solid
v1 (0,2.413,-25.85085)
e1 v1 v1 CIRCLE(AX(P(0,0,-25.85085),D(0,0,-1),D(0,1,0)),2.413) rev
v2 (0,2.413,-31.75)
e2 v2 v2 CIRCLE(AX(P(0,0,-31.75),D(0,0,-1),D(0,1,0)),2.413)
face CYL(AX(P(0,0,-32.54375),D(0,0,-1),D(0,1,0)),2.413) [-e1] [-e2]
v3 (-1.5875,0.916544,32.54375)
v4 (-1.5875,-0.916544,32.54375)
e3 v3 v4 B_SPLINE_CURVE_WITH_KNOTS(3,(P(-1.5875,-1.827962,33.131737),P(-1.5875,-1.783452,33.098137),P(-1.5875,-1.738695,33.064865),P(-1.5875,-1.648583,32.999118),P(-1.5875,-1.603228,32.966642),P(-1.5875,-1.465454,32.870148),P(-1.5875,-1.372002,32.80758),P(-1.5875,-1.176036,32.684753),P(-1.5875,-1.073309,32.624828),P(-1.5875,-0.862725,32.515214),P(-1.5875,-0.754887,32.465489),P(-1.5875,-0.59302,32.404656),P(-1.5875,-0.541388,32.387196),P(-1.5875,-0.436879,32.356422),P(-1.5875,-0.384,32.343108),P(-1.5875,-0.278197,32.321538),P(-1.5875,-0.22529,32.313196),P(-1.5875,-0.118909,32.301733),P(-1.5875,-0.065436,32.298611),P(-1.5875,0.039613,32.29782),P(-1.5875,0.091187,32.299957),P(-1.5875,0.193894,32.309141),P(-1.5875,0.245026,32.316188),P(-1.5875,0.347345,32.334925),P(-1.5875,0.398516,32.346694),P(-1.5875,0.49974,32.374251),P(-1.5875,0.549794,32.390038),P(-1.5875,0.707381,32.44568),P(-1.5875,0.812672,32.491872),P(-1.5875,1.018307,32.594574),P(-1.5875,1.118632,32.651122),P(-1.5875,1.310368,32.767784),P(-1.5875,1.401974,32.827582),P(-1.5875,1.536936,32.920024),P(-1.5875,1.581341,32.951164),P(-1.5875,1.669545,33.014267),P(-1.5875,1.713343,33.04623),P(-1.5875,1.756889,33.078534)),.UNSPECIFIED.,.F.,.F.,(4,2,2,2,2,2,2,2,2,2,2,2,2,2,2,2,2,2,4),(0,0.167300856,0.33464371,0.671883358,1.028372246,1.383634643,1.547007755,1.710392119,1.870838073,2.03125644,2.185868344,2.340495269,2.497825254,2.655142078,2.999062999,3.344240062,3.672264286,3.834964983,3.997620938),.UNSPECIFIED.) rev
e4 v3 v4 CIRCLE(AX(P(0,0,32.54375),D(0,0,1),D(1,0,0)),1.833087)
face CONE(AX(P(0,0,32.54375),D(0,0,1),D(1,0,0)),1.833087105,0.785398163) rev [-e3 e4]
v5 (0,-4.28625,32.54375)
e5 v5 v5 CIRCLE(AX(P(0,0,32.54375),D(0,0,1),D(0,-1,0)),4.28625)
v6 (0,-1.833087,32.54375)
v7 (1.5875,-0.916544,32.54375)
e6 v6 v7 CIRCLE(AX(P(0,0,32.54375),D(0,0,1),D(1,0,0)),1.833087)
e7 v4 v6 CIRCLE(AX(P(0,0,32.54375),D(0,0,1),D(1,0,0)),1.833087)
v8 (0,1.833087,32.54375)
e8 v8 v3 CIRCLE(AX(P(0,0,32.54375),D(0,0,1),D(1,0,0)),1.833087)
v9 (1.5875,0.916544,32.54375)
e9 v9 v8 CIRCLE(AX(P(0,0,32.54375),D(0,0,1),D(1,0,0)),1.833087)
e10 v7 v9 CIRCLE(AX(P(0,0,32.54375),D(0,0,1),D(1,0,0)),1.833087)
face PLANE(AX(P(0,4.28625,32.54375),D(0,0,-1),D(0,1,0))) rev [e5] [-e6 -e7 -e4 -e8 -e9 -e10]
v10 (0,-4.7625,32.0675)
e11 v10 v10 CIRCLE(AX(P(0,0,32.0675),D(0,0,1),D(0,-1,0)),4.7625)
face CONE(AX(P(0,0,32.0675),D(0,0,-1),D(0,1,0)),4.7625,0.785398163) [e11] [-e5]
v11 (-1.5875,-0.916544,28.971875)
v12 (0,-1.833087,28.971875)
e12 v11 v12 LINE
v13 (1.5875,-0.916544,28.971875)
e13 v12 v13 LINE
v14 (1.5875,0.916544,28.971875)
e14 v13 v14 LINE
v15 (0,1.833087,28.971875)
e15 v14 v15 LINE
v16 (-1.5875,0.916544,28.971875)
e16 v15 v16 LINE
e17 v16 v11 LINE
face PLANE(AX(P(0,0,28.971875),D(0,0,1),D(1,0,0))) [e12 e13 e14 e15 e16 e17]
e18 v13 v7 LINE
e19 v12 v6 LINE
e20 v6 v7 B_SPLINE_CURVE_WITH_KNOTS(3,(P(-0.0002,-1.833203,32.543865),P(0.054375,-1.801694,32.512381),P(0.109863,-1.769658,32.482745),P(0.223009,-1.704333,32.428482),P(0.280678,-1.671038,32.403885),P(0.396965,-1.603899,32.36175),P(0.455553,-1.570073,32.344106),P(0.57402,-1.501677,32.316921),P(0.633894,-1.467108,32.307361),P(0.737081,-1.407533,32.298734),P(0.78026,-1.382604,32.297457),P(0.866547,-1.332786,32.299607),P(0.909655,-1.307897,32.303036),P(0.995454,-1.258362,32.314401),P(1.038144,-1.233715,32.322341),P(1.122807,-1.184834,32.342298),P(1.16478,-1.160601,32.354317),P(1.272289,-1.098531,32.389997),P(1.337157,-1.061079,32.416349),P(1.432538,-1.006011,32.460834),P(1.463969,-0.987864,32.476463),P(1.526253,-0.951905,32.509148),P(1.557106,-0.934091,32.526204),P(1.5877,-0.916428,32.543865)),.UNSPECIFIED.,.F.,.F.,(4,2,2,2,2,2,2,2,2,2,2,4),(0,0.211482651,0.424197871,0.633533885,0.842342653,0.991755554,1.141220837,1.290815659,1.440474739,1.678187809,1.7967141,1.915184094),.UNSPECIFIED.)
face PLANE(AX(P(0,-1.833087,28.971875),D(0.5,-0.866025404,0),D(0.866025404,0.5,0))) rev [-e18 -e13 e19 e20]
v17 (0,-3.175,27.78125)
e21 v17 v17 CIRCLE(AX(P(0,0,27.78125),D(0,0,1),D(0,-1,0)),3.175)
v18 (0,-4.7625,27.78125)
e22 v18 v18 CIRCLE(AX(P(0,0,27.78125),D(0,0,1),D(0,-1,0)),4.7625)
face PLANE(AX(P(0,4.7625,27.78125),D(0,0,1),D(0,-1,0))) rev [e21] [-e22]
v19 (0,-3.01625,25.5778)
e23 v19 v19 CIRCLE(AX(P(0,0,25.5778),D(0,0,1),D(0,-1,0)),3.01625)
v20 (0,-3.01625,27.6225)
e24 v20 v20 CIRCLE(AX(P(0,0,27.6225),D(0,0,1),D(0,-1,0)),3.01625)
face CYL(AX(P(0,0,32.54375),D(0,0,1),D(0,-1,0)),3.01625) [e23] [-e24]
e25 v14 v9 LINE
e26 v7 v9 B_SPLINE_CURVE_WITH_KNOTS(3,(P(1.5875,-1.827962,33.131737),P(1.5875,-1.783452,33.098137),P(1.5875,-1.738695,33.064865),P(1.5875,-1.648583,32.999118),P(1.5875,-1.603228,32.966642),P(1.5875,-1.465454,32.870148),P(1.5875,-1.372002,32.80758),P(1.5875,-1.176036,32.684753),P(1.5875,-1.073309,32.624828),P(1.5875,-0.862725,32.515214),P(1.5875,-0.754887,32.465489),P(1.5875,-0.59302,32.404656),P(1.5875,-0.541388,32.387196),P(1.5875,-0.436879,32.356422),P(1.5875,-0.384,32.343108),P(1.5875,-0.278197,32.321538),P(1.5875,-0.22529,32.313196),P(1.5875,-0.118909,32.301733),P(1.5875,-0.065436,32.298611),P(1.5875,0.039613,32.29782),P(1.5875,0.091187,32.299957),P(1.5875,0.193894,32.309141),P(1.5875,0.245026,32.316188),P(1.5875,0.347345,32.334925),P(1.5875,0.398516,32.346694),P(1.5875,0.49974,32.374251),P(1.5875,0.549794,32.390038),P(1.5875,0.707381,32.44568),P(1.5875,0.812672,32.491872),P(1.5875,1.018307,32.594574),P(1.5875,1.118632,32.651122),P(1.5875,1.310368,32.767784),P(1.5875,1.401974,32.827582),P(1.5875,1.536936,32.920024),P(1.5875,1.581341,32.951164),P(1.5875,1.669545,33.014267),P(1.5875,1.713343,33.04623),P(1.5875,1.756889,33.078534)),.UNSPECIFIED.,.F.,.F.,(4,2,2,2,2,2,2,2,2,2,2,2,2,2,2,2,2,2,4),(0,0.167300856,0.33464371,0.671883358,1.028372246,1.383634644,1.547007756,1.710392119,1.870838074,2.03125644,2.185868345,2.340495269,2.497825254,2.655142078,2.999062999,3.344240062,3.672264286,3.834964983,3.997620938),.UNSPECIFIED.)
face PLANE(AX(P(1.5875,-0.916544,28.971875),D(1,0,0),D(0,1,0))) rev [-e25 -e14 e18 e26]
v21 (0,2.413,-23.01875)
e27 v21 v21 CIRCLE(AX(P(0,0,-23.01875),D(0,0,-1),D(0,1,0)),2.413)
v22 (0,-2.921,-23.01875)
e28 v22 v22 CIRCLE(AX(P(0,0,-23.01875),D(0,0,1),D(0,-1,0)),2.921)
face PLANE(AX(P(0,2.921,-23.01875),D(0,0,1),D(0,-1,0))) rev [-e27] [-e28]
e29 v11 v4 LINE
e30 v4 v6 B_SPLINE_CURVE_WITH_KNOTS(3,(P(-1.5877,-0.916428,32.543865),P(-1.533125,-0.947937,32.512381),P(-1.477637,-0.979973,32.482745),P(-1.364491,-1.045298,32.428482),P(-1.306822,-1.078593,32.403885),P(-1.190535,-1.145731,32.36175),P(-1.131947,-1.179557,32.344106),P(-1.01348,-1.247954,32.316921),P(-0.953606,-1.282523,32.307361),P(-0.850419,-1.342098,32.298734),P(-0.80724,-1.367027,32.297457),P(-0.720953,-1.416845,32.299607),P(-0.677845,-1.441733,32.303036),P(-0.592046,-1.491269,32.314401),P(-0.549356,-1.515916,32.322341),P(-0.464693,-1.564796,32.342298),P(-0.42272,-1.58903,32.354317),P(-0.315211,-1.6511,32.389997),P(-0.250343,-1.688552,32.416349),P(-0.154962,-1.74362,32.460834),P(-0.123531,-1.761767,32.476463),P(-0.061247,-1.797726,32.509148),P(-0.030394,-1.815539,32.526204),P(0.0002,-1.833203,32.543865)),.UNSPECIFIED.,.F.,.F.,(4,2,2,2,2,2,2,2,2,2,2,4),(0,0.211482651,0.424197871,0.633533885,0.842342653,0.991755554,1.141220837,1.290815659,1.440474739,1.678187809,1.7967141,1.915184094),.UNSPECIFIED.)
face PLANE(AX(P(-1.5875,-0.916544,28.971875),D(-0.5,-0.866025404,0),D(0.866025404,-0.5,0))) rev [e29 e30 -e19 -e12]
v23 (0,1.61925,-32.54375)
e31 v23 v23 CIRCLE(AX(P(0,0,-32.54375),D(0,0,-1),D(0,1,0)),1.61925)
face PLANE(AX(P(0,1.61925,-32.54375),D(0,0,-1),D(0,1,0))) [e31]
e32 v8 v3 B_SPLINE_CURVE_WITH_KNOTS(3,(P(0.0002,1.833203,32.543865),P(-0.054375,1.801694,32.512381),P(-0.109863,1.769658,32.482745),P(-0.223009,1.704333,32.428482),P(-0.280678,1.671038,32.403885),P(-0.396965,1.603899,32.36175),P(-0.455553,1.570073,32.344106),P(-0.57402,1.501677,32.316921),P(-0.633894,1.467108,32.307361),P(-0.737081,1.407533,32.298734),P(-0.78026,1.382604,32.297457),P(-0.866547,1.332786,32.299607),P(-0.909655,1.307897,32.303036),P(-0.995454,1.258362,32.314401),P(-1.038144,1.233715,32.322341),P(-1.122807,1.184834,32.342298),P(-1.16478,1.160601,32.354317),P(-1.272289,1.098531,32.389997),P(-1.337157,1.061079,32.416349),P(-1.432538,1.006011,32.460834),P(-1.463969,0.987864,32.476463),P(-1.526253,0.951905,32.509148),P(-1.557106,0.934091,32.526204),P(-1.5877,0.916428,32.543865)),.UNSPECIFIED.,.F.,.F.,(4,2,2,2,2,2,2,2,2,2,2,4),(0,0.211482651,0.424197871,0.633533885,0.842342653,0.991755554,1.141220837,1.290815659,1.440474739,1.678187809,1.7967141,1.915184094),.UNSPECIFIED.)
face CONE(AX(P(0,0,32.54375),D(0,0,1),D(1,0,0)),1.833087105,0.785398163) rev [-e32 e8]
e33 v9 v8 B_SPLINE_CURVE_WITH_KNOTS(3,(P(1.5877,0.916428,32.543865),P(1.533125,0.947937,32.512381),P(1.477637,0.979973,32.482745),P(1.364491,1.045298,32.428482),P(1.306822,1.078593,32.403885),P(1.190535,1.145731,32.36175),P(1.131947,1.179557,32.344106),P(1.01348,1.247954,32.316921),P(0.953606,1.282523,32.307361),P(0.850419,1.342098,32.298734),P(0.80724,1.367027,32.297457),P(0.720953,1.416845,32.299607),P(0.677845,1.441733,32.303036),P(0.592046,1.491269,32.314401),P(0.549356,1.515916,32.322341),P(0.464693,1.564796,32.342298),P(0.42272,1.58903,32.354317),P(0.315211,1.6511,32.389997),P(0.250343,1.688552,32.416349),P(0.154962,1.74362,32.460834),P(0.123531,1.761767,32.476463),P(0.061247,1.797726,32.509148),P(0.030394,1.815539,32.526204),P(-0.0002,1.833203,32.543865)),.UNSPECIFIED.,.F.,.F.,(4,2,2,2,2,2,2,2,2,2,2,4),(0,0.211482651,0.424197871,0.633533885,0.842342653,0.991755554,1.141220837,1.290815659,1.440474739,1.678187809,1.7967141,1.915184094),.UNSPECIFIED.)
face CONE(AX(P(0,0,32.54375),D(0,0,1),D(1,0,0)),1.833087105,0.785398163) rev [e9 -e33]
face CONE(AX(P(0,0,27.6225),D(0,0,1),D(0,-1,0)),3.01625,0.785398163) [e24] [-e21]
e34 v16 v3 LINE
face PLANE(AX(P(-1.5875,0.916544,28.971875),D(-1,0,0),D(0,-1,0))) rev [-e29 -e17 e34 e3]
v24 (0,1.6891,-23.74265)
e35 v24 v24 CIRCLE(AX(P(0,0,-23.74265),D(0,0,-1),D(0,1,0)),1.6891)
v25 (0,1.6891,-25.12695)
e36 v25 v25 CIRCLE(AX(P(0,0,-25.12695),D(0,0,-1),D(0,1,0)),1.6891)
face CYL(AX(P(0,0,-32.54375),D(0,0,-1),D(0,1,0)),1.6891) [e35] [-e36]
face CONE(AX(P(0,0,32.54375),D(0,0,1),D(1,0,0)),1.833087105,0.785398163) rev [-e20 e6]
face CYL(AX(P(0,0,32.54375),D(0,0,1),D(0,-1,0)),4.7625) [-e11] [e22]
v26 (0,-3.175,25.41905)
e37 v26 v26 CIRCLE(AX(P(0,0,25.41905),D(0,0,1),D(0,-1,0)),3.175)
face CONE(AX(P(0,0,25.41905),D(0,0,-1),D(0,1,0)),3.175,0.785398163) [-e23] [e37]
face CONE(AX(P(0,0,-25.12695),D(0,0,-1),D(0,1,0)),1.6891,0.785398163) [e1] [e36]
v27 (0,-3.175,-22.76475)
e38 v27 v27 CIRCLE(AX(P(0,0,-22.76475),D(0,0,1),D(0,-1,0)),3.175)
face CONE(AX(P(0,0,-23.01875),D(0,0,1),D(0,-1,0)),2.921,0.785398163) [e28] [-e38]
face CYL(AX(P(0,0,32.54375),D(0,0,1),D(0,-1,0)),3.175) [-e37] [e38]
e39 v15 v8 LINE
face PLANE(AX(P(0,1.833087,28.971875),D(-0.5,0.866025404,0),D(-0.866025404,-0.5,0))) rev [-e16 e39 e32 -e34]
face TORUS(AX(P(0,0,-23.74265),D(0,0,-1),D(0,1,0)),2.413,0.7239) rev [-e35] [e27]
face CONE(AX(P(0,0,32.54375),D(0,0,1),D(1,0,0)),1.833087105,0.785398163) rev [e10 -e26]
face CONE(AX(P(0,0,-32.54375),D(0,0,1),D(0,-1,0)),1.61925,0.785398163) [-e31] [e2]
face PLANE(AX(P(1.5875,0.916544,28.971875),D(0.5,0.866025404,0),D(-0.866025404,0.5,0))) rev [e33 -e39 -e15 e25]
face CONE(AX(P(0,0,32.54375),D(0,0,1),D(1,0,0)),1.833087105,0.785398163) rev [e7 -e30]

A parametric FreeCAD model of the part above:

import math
import FreeCAD as App
import Part
import Sketcher

V = App.Vector
Q = App.Units.Quantity

doc = App.newDocument("Part")
body = doc.addObject("PartDesign::Body", "Body")

# Sketch on YZ plane
sketch1 = body.newObject("Sketcher::SketchObject", "Sketch")
sketch1.AttachmentSupport = (doc.getObject("YZ_Plane"), [""])
sketch1.MapMode = "FlatFace"
sketch1.addGeometry([
    Part.LineSegment(V(4.76, 27.78, 0), V(4.76, 32.07, 0)),  # 0
    Part.LineSegment(V(4.76, 32.07, 0), V(4.29, 32.54, 0)),  # 1
    Part.LineSegment(V(4.29, 32.54, 0), V(0, 32.54, 0)),  # 2
    Part.LineSegment(V(0, 32.54, 0), V(0, -23.02, 0)),  # 3
    Part.LineSegment(V(0, -23.02, 0), V(2.92, -23.02, 0)),  # 4
    Part.LineSegment(V(2.92, -23.02, 0), V(3.17, -22.76, 0)),  # 5
    Part.LineSegment(V(3.17, -22.76, 0), V(3.17, 25.42, 0)),  # 6
    Part.LineSegment(V(3.17, 25.42, 0), V(3.02, 25.58, 0)),  # 7
    Part.LineSegment(V(3.02, 25.58, 0), V(3.02, 27.62, 0)),  # 8
    Part.LineSegment(V(3.02, 27.62, 0), V(3.17, 27.78, 0)),  # 9
    Part.LineSegment(V(3.17, 27.78, 0), V(4.76, 27.78, 0)),  # 10
], False)
sketch1.addConstraint([
    Sketcher.Constraint("Coincident", 0, 2, 1, 1),
    Sketcher.Constraint("Coincident", 1, 2, 2, 1),
    Sketcher.Constraint("Coincident", 2, 2, 3, 1),
    Sketcher.Constraint("Coincident", 3, 2, 4, 1),
    Sketcher.Constraint("Coincident", 4, 2, 5, 1),
    Sketcher.Constraint("Coincident", 5, 2, 6, 1),
    Sketcher.Constraint("Coincident", 6, 2, 7, 1),
    Sketcher.Constraint("Coincident", 7, 2, 8, 1),
    Sketcher.Constraint("Coincident", 8, 2, 9, 1),
    Sketcher.Constraint("Coincident", 9, 2, 10, 1),
    Sketcher.Constraint("Coincident", 10, 2, 0, 1),
    Sketcher.Constraint("Vertical", 0),
    Sketcher.Constraint("Horizontal", 2),
    Sketcher.Constraint("Vertical", 3),
    Sketcher.Constraint("Horizontal", 4),
    Sketcher.Constraint("Vertical", 6),
    Sketcher.Constraint("Vertical", 8),
    Sketcher.Constraint("Horizontal", 10),
    Sketcher.Constraint("PointOnObject", 2, 2, -2),
    Sketcher.Constraint("Perpendicular", 1, 5),
    Sketcher.Constraint("Perpendicular", 5, 7),
    Sketcher.Constraint("Perpendicular", 7, 9),
    Sketcher.Constraint("Vertical", 6, 2, 9, 2),
    Sketcher.Constraint("Equal", 2, 0),
    Sketcher.Constraint("Equal", 7, 9),
    Sketcher.Constraint("DistanceX", 4, 1, 4, 2, Q("0.115 in")),
    Sketcher.Constraint("DistanceX", 10, 1, 10, 2, Q("0.0625 in")),
    Sketcher.Constraint("DistanceY", 3, 2, 3, 1, Q("2.1875 in")),
    Sketcher.Constraint("DistanceY", 6, 1, 6, 2, Q("1.897 in")),
    Sketcher.Constraint("DistanceX", 4, 2, 5, 2, Q("0.01 in")),
    Sketcher.Constraint("DistanceX", 7, 2, 1, 2, Q("0.05 in")),
    Sketcher.Constraint("DistanceY", 8, 1, 8, 2, Q("0.0805 in")),
    Sketcher.Constraint("DistanceY", -1, 1, 1, 2, Q("1.28125 in")),
])
revolution = body.newObject("PartDesign::Revolution", "Revolution")
revolution.Profile = sketch1
revolution.ReferenceAxis = (sketch1, ["V_Axis"])
revolution.Angle = 360

# Sketch on XY plane
sketch2 = body.newObject("Sketcher::SketchObject", "Sketch001")
sketch2.AttachmentSupport = (doc.getObject("XY_Plane"), [""])
sketch2.MapMode = "FlatFace"
sketch2.AttachmentOffset = App.Placement(V(0, 0, 1.28125 * 25.4), App.Rotation())
sketch2.addGeometry([
    Part.LineSegment(V(1.6, 0.9, 0), V(0, 1.8, 0)),  # 0
    Part.LineSegment(V(0, 1.8, 0), V(-1.6, 0.9, 0)),  # 1
    Part.LineSegment(V(-1.6, 0.9, 0), V(-1.6, -0.9, 0)),  # 2
    Part.LineSegment(V(-1.6, -0.9, 0), V(0, -1.8, 0)),  # 3
    Part.LineSegment(V(0, -1.8, 0), V(1.6, -0.9, 0)),  # 4
    Part.LineSegment(V(1.6, -0.9, 0), V(1.6, 0.9, 0)),  # 5
], False)
sketch2.addConstraint([
    Sketcher.Constraint("Coincident", 0, 2, 1, 1),
    Sketcher.Constraint("Coincident", 1, 2, 2, 1),
    Sketcher.Constraint("Coincident", 2, 2, 3, 1),
    Sketcher.Constraint("Coincident", 3, 2, 4, 1),
    Sketcher.Constraint("Coincident", 4, 2, 5, 1),
    Sketcher.Constraint("Coincident", 5, 2, 0, 1),
    Sketcher.Constraint("Vertical", 2),
    Sketcher.Constraint("Vertical", 5),
    Sketcher.Constraint("Symmetric", 0, 2, 3, 2, -1, 1),
    Sketcher.Constraint("Symmetric", 1, 2, 4, 2, -1, 1),
    Sketcher.Constraint("PointOnObject", 0, 2, -2),
    Sketcher.Constraint("Parallel", 0, 3),
    Sketcher.Constraint("Horizontal", 2, 2, 4, 2),
    Sketcher.Constraint("Angle", 0, Q("150 deg")),
    Sketcher.Constraint("DistanceX", 1, 2, -1, 1, Q("0.0625 in")),
    Sketcher.Constraint("DistanceY", 2, 2, 2, 1, 1.833087),
])
pocket1 = body.newObject("PartDesign::Pocket", "Pocket")
pocket1.Profile = sketch2
pocket1.Length = Q("0.140625 in")

# Sketch on YZ plane
sketch3 = body.newObject("Sketcher::SketchObject", "Sketch002")
sketch3.AttachmentSupport = (doc.getObject("YZ_Plane"), [""])
sketch3.MapMode = "FlatFace"
sketch3.addGeometry([
    Part.LineSegment(V(0, 32.5, 0), V(-1.8, 32.5, 0)),
    Part.LineSegment(V(-1.8, 32.5, 0), V(0, 30.7, 0)),
    Part.LineSegment(V(0, 30.7, 0), V(0, 32.5, 0)),
], False)
sketch3.addConstraint([
    Sketcher.Constraint("Coincident", 0, 2, 1, 1),
    Sketcher.Constraint("Coincident", 1, 2, 2, 1),
    Sketcher.Constraint("Coincident", 2, 2, 0, 1),
    Sketcher.Constraint("Horizontal", 0),
    Sketcher.Constraint("Vertical", 2),
    Sketcher.Constraint("PointOnObject", 1, 2, -2),
    Sketcher.Constraint("Equal", 0, 2),
    Sketcher.Constraint("DistanceY", -1, 1, 0, 2, Q("1.28125 in")),
    Sketcher.Constraint("DistanceX", 0, 2, 0, 1, 1.833087),
])
groove = body.newObject("PartDesign::Groove", "Groove")
groove.Profile = sketch3
groove.ReferenceAxis = (sketch3, ["V_Axis"])
groove.Angle = 360

# Sketch on YZ plane
sketch4 = body.newObject("Sketcher::SketchObject", "Sketch003")
sketch4.AttachmentSupport = (doc.getObject("YZ_Plane"), [""])
sketch4.MapMode = "FlatFace"
sketch4.addGeometry([
    Part.LineSegment(V(2.4, -31.8, 0), V(2.4, -23, 0)),  # 0
    Part.LineSegment(V(2.4, -23, 0), V(0, -23, 0)),  # 1
    Part.LineSegment(V(0, -23, 0), V(0, -32.5, 0)),  # 2
    Part.LineSegment(V(0, -32.5, 0), V(1.6, -32.5, 0)),  # 3
    Part.LineSegment(V(1.6, -32.5, 0), V(2.4, -31.8, 0)),  # 4
], False)
sketch4.addConstraint([
    Sketcher.Constraint("Coincident", 0, 2, 1, 1),
    Sketcher.Constraint("Coincident", 1, 2, 2, 1),
    Sketcher.Constraint("Coincident", 2, 2, 3, 1),
    Sketcher.Constraint("Coincident", 3, 2, 4, 1),
    Sketcher.Constraint("Coincident", 4, 2, 0, 1),
    Sketcher.Constraint("Vertical", 0),
    Sketcher.Constraint("Horizontal", 1),
    Sketcher.Constraint("Vertical", 2),
    Sketcher.Constraint("Horizontal", 3),
    Sketcher.Constraint("PointOnObject", 1, 2, -2),
    Sketcher.Constraint("Angle", 4, Q("45 deg")),
    Sketcher.Constraint("DistanceX", 1, 2, 1, 1, Q("0.095 in")),
    Sketcher.Constraint("DistanceY", 0, 1, 0, 2, Q("0.34375 in")),
    Sketcher.Constraint("DistanceY", 2, 2, 2, 1, Q("0.375 in")),
    Sketcher.Constraint("DistanceY", 4, 2, -1, 1, Q("1.25 in")),
])
revolution2 = body.newObject("PartDesign::Revolution", "Revolution001")
revolution2.Profile = sketch4
revolution2.ReferenceAxis = (sketch4, ["V_Axis"])
revolution2.Angle = 360

# Sketch on YZ plane
sketch5 = body.newObject("Sketcher::SketchObject", "Sketch004")
sketch5.AttachmentSupport = (doc.getObject("YZ_Plane"), [""])
sketch5.MapMode = "FlatFace"
sketch5.addGeometry([
    Part.LineSegment(V(1.7, -23.7, 0), V(1.7, -25.1, 0)),  # 0
    Part.LineSegment(V(1.7, -25.1, 0), V(3.2, -26.6, 0)),  # 1
    Part.LineSegment(V(3.2, -26.6, 0), V(3.2, -23, 0)),  # 2
    Part.LineSegment(V(3.2, -23, 0), V(2.4, -23, 0)),  # 3
    Part.ArcOfCircle(Part.Circle(V(2.4, -23.7, 0), V(0, 0, 1), 0.7), math.radians(90), math.radians(180)),  # 4
], False)
sketch5.addConstraint([
    Sketcher.Constraint("Coincident", 0, 2, 1, 1),
    Sketcher.Constraint("Coincident", 1, 2, 2, 1),
    Sketcher.Constraint("Coincident", 2, 2, 3, 1),
    Sketcher.Constraint("Tangent", 3, 2, 4, 1),
    Sketcher.Constraint("Tangent", 4, 2, 0, 1),
    Sketcher.Constraint("Vertical", 0),
    Sketcher.Constraint("Vertical", 2),
    Sketcher.Constraint("Horizontal", 3),
    Sketcher.Constraint("Angle", 1, Q("-45 deg")),
    Sketcher.Constraint("DistanceX", 3, 2, 3, 1, Q("0.03 in")),
    Sketcher.Constraint("Radius", 4, Q("0.0285 in")),
    Sketcher.Constraint("DistanceY", 0, 2, 0, 1, Q("0.0545 in")),
    Sketcher.Constraint("DistanceX", -1, 1, 4, 3, Q("0.095 in")),
    Sketcher.Constraint("DistanceY", 2, 2, -1, 1, Q("0.90625 in")),
])
groove2 = body.newObject("PartDesign::Groove", "Groove001")
groove2.Profile = sketch5
groove2.ReferenceAxis = (sketch5, ["V_Axis"])
groove2.Angle = 360

doc.recompute()
